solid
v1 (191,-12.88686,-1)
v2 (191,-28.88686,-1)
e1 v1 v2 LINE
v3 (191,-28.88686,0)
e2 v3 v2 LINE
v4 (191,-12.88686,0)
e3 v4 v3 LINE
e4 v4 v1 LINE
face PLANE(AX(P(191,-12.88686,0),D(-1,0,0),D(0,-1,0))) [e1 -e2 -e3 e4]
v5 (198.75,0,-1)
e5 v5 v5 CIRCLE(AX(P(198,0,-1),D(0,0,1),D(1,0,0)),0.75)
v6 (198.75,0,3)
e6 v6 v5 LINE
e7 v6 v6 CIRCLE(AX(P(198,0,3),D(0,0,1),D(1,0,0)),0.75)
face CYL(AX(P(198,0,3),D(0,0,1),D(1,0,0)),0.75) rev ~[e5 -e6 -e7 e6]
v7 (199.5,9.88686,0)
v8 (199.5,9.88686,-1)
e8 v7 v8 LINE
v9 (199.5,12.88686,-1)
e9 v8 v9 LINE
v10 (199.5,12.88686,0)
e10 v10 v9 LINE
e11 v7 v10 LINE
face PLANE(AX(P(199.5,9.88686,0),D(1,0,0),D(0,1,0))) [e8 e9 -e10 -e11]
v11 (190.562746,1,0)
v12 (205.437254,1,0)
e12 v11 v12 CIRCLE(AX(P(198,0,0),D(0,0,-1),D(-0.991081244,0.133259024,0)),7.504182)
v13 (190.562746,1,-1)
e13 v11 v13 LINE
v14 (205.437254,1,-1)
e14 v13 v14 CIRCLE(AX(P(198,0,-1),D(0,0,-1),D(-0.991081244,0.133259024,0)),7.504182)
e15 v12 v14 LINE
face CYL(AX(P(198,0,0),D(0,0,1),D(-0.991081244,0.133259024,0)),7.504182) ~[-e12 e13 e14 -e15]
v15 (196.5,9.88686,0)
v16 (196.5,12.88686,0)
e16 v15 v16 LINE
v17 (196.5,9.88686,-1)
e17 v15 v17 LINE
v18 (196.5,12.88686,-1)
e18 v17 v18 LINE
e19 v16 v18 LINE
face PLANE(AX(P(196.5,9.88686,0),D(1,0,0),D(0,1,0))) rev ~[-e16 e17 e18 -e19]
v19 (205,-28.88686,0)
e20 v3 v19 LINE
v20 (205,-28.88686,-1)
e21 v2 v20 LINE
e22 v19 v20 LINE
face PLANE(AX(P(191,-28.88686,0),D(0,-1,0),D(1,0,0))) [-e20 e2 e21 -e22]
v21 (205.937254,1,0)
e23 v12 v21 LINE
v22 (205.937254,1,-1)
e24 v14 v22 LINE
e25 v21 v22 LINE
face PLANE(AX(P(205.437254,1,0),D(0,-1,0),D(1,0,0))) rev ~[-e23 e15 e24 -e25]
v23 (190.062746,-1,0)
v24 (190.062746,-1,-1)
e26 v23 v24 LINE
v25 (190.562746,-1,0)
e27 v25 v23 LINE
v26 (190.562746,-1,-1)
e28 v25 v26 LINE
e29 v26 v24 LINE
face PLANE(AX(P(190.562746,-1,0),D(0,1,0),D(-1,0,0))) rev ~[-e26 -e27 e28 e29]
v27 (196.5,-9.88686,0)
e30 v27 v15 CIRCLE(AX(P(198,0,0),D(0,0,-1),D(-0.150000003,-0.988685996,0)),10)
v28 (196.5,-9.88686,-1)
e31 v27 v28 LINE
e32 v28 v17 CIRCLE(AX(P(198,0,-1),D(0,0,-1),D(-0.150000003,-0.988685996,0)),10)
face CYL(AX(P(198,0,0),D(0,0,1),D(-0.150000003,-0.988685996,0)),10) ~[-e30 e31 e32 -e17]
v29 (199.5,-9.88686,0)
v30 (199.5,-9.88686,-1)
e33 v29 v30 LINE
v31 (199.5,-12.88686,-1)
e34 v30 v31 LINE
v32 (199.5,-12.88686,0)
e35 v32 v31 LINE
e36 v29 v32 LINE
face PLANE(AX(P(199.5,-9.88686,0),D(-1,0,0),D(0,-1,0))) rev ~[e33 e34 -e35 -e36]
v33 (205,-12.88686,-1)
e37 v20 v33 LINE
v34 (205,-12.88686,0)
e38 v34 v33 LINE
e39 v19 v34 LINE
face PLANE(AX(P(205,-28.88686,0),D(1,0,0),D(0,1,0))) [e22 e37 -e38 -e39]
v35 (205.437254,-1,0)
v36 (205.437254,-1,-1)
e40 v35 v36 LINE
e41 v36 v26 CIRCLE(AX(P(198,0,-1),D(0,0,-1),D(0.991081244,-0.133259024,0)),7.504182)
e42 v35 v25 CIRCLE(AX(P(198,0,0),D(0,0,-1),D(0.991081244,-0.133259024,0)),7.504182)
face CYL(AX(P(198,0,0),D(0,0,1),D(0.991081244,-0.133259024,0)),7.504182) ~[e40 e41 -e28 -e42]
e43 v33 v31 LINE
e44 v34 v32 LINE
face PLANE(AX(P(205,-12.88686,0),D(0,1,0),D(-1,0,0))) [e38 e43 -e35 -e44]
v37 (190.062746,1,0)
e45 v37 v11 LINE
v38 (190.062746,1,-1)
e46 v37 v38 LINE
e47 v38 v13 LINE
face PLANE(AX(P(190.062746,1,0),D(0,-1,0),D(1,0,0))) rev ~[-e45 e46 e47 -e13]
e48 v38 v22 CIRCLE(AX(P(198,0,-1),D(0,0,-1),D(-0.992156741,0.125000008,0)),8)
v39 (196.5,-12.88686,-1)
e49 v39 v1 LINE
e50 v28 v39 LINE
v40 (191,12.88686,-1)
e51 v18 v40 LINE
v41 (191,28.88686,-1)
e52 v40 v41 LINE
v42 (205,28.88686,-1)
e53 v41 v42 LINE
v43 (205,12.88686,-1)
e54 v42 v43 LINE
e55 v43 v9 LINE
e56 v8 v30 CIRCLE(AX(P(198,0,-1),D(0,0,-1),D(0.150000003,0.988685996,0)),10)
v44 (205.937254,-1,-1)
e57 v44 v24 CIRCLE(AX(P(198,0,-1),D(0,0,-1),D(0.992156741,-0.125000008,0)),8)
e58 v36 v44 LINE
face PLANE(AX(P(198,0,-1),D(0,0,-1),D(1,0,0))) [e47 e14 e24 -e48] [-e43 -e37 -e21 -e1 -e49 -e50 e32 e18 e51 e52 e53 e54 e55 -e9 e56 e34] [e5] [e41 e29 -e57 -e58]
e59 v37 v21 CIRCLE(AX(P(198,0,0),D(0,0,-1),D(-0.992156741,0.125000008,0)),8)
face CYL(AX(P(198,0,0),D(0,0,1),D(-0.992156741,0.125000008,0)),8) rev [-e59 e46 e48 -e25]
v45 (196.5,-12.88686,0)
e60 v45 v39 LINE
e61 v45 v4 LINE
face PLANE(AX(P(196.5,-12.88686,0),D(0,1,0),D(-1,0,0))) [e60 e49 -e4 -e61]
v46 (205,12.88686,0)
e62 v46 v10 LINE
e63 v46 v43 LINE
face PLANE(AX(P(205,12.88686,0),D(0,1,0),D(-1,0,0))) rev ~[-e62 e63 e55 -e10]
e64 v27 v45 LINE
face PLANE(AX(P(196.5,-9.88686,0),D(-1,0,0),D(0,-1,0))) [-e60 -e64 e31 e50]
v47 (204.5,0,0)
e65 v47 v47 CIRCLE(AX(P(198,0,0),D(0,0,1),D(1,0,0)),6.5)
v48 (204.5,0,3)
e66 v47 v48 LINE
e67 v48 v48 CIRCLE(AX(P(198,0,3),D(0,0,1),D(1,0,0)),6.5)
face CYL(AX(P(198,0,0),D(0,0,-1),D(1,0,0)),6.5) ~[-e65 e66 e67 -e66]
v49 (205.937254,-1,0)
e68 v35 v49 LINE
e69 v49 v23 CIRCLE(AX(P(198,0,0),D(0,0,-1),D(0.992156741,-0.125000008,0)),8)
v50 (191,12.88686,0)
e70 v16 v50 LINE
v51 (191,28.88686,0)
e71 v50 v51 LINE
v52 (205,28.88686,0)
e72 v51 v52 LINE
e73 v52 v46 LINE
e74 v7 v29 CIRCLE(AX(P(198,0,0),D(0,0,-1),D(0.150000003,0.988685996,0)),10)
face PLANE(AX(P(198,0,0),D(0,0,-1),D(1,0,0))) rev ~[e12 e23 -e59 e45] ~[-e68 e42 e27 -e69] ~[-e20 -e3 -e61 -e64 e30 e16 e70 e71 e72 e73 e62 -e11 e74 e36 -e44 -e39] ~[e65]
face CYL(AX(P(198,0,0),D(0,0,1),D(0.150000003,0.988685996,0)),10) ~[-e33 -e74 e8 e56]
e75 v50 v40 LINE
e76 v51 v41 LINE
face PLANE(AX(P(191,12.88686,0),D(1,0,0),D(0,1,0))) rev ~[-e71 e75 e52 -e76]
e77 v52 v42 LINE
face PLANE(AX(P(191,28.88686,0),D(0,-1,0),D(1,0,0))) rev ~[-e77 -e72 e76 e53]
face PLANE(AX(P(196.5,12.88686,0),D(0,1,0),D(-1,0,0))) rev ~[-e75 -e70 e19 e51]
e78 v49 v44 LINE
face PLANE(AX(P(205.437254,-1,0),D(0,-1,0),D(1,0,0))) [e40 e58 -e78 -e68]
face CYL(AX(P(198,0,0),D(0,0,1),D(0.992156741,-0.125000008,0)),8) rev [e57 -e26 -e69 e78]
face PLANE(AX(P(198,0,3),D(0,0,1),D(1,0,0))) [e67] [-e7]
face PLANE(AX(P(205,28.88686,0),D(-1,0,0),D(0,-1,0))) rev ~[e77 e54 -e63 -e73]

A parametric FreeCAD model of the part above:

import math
import FreeCAD as App
import Part
import Sketcher

doc = App.newDocument("Part")
body = doc.addObject("PartDesign::Body", "Body")

# Sketch on XY plane
sketch1 = body.newObject("Sketcher::SketchObject", "Sketch")
sketch1.AttachmentSupport = (doc.getObject("XY_Plane"), [""])
sketch1.MapMode = "FlatFace"
sketch1.addGeometry(Part.Circle(App.Vector(0, 0, 0), App.Vector(0, 0, 1), 6.5), False)
sketch1.addConstraint([
    Sketcher.Constraint("Coincident", 0, 3, -1, 1),
    Sketcher.Constraint("Diameter", 0, 13.0),
])
pad1 = body.newObject("PartDesign::Pad", "Pad")
pad1.Profile = sketch1
pad1.Length = 3

# Sketch on XY plane
sketch2 = body.newObject("Sketcher::SketchObject", "Sketch001")
sketch2.AttachmentSupport = (doc.getObject("XY_Plane"), [""])
sketch2.MapMode = "FlatFace"
sketch2.addGeometry([
    Part.ArcOfCircle(Part.Circle(App.Vector(0, 0, 0), App.Vector(0, 0, 1), 10), math.radians(98.626927), math.radians(261.373073)),  # 0
    Part.LineSegment(App.Vector(-1.5, 9.88686, 0), App.Vector(-1.5, 12.88686, 0)),  # 1
    Part.LineSegment(App.Vector(-1.5, 12.88686, 0), App.Vector(-7, 12.88686, 0)),  # 2
    Part.LineSegment(App.Vector(-7, 12.88686, 0), App.Vector(-7, 28.88686, 0)),  # 3
    Part.LineSegment(App.Vector(-7, 28.88686, 0), App.Vector(7, 28.88686, 0)),  # 4
    Part.LineSegment(App.Vector(7, 28.88686, 0), App.Vector(7, 12.88686, 0)),  # 5
    Part.LineSegment(App.Vector(7, 12.88686, 0), App.Vector(1.5, 12.88686, 0)),  # 6
    Part.LineSegment(App.Vector(1.5, 12.88686, 0), App.Vector(1.5, 9.88686, 0)),  # 7
    Part.ArcOfCircle(Part.Circle(App.Vector(0, 0, 0), App.Vector(0, 0, 1), 10), math.radians(-81.373073), math.radians(81.373073)),  # 8
    Part.LineSegment(App.Vector(1.5, -9.88686, 0), App.Vector(1.5, -12.88686, 0)),  # 9
    Part.LineSegment(App.Vector(1.5, -12.88686, 0), App.Vector(7, -12.88686, 0)),  # 10
    Part.LineSegment(App.Vector(7, -12.88686, 0), App.Vector(7, -28.88686, 0)),  # 11
    Part.LineSegment(App.Vector(7, -28.88686, 0), App.Vector(-7, -28.88686, 0)),  # 12
    Part.LineSegment(App.Vector(-7, -28.88686, 0), App.Vector(-7, -12.88686, 0)),  # 13
    Part.LineSegment(App.Vector(-7, -12.88686, 0), App.Vector(-1.5, -12.88686, 0)),  # 14
    Part.LineSegment(App.Vector(-1.5, -12.88686, 0), App.Vector(-1.5, -9.88686, 0)),  # 15
    Part.ArcOfCircle(Part.Circle(App.Vector(0, 0, 0), App.Vector(0, 0, 1), 8), math.radians(7.180756), math.radians(172.819244)),  # 16
    Part.LineSegment(App.Vector(-7.937254, 1, 0), App.Vector(-7.437254, 1, 0)),  # 17
    Part.ArcOfCircle(Part.Circle(App.Vector(0, 0, 0), App.Vector(0, 0, 1), 7.504182), math.radians(7.65796), math.radians(172.34204)),  # 18
    Part.LineSegment(App.Vector(7.437254, 1, 0), App.Vector(7.937254, 1, 0)),  # 19
    Part.ArcOfCircle(Part.Circle(App.Vector(0, 0, 0), App.Vector(0, 0, 1), 7.504182), math.radians(-172.34204), math.radians(-7.65796)),  # 20
    Part.LineSegment(App.Vector(-7.437254, -1, 0), App.Vector(-7.937254, -1, 0)),  # 21
    Part.ArcOfCircle(Part.Circle(App.Vector(0, 0, 0), App.Vector(0, 0, 1), 8), math.radians(-172.819244), math.radians(-7.180756)),  # 22
    Part.LineSegment(App.Vector(7.937254, -1, 0), App.Vector(7.437254, -1, 0)),  # 23
], False)
sketch2.addConstraint([
    Sketcher.Constraint("Coincident", 0, 1, 1, 1),
    Sketcher.Constraint("Coincident", 1, 2, 2, 1),
    Sketcher.Constraint("Coincident", 2, 2, 3, 1),
    Sketcher.Constraint("Coincident", 3, 2, 4, 1),
    Sketcher.Constraint("Coincident", 4, 2, 5, 1),
    Sketcher.Constraint("Coincident", 5, 2, 6, 1),
    Sketcher.Constraint("Coincident", 6, 2, 7, 1),
    Sketcher.Constraint("Coincident", 7, 2, 8, 2),
    Sketcher.Constraint("Coincident", 8, 1, 9, 1),
    Sketcher.Constraint("Coincident", 9, 2, 10, 1),
    Sketcher.Constraint("Coincident", 10, 2, 11, 1),
    Sketcher.Constraint("Coincident", 11, 2, 12, 1),
    Sketcher.Constraint("Coincident", 12, 2, 13, 1),
    Sketcher.Constraint("Coincident", 13, 2, 14, 1),
    Sketcher.Constraint("Coincident", 14, 2, 15, 1),
    Sketcher.Constraint("Coincident", 15, 2, 0, 2),
    Sketcher.Constraint("Coincident", 16, 2, 17, 1),
    Sketcher.Constraint("Coincident", 17, 2, 18, 2),
    Sketcher.Constraint("Coincident", 18, 1, 19, 1),
    Sketcher.Constraint("Coincident", 19, 2, 16, 1),
    Sketcher.Constraint("Coincident", 20, 1, 21, 1),
    Sketcher.Constraint("Coincident", 21, 2, 22, 1),
    Sketcher.Constraint("Coincident", 22, 2, 23, 1),
    Sketcher.Constraint("Coincident", 23, 2, 20, 2),
    Sketcher.Constraint("Vertical", 1),
    Sketcher.Constraint("Horizontal", 2),
    Sketcher.Constraint("Vertical", 3),
    Sketcher.Constraint("Horizontal", 4),
    Sketcher.Constraint("Vertical", 5),
    Sketcher.Constraint("Horizontal", 6),
    Sketcher.Constraint("Vertical", 7),
    Sketcher.Constraint("Vertical", 9),
    Sketcher.Constraint("Horizontal", 10),
    Sketcher.Constraint("Vertical", 11),
    Sketcher.Constraint("Horizontal", 12),
    Sketcher.Constraint("Vertical", 13),
    Sketcher.Constraint("Horizontal", 14),
    Sketcher.Constraint("Vertical", 15),
    Sketcher.Constraint("Horizontal", 17),
    Sketcher.Constraint("Horizontal", 19),
    Sketcher.Constraint("Horizontal", 21),
    Sketcher.Constraint("Horizontal", 23),
    Sketcher.Constraint("Coincident", 0, 3, -1, 1),
    Sketcher.Constraint("Coincident", 8, 3, -1, 1),
    Sketcher.Constraint("Coincident", 16, 3, -1, 1),
    Sketcher.Constraint("Coincident", 18, 3, -1, 1),
    Sketcher.Constraint("Coincident", 20, 3, -1, 1),
    Sketcher.Constraint("Coincident", 22, 3, -1, 1),
    Sketcher.Constraint("Equal", 0, 8),
    Sketcher.Constraint("Equal", 18, 20),
    Sketcher.Constraint("Equal", 16, 22),
    Sketcher.Constraint("Symmetric", 1, 2, 9, 2, -1, 1),
    Sketcher.Constraint("Symmetric", 3, 2, 11, 2, -1, 1),
    Sketcher.Constraint("Symmetric", 5, 2, 13, 2, -1, 1),
    Sketcher.Constraint("Symmetric", 2, 2, 5, 2, -2),
    Sketcher.Constraint("Horizontal", 0, 1, 7, 2),
    Sketcher.Constraint("Horizontal", 8, 1, 15, 2),
    Sketcher.Constraint("Horizontal", 17, 2, 18, 1),
    Sketcher.Constraint("Horizontal", 21, 2, 22, 2),
    Sketcher.Constraint("Vertical", 17, 2, 20, 1),
    Sketcher.Constraint("Radius", 0, 10.0),
    Sketcher.Constraint("Radius", 16, 8.0),
    Sketcher.Constraint("DistanceX", 4, 1, 4, 2, 14.0),
    Sketcher.Constraint("DistanceY", 1, 1, 1, 2, 3.0),
    Sketcher.Constraint("DistanceY", 3, 1, 3, 2, 16.0),
    Sketcher.Constraint("DistanceX", 2, 2, 2, 1, 5.5),
    Sketcher.Constraint("DistanceX", 17, 1, 17, 2, 0.5),
    Sketcher.Constraint("DistanceY", -1, 1, 16, 2, 1.0),
])
pad2 = body.newObject("PartDesign::Pad", "Pad001")
pad2.Profile = sketch2
pad2.Length = 1
pad2.Reversed = True

# Sketch on XY plane
sketch3 = body.newObject("Sketcher::SketchObject", "Sketch002")
sketch3.AttachmentSupport = (doc.getObject("XY_Plane"), [""])
sketch3.MapMode = "FlatFace"
sketch3.AttachmentOffset = App.Placement(App.Vector(0, 0, 3), App.Rotation())
sketch3.addGeometry(Part.Circle(App.Vector(0, 0, 0), App.Vector(0, 0, 1), 0.75), False)
sketch3.addConstraint([
    Sketcher.Constraint("Coincident", 0, 3, -1, 1),
    Sketcher.Constraint("Diameter", 0, 1.5),
])
pocket1 = body.newObject("PartDesign::Pocket", "Pocket")
pocket1.Profile = sketch3
pocket1.Length = 5
body2 = doc.addObject("PartDesign::Body", "Body001")
doc.recompute()

body.Placement = App.Placement(App.Vector(198, 0, 0), App.Rotation(App.Vector(0, 0, 1), 0))
boolean = body2.newObject("PartDesign::Boolean", "Boolean")
boolean.Type = "Fuse"
boolean.addObjects([body])

doc.recompute()
